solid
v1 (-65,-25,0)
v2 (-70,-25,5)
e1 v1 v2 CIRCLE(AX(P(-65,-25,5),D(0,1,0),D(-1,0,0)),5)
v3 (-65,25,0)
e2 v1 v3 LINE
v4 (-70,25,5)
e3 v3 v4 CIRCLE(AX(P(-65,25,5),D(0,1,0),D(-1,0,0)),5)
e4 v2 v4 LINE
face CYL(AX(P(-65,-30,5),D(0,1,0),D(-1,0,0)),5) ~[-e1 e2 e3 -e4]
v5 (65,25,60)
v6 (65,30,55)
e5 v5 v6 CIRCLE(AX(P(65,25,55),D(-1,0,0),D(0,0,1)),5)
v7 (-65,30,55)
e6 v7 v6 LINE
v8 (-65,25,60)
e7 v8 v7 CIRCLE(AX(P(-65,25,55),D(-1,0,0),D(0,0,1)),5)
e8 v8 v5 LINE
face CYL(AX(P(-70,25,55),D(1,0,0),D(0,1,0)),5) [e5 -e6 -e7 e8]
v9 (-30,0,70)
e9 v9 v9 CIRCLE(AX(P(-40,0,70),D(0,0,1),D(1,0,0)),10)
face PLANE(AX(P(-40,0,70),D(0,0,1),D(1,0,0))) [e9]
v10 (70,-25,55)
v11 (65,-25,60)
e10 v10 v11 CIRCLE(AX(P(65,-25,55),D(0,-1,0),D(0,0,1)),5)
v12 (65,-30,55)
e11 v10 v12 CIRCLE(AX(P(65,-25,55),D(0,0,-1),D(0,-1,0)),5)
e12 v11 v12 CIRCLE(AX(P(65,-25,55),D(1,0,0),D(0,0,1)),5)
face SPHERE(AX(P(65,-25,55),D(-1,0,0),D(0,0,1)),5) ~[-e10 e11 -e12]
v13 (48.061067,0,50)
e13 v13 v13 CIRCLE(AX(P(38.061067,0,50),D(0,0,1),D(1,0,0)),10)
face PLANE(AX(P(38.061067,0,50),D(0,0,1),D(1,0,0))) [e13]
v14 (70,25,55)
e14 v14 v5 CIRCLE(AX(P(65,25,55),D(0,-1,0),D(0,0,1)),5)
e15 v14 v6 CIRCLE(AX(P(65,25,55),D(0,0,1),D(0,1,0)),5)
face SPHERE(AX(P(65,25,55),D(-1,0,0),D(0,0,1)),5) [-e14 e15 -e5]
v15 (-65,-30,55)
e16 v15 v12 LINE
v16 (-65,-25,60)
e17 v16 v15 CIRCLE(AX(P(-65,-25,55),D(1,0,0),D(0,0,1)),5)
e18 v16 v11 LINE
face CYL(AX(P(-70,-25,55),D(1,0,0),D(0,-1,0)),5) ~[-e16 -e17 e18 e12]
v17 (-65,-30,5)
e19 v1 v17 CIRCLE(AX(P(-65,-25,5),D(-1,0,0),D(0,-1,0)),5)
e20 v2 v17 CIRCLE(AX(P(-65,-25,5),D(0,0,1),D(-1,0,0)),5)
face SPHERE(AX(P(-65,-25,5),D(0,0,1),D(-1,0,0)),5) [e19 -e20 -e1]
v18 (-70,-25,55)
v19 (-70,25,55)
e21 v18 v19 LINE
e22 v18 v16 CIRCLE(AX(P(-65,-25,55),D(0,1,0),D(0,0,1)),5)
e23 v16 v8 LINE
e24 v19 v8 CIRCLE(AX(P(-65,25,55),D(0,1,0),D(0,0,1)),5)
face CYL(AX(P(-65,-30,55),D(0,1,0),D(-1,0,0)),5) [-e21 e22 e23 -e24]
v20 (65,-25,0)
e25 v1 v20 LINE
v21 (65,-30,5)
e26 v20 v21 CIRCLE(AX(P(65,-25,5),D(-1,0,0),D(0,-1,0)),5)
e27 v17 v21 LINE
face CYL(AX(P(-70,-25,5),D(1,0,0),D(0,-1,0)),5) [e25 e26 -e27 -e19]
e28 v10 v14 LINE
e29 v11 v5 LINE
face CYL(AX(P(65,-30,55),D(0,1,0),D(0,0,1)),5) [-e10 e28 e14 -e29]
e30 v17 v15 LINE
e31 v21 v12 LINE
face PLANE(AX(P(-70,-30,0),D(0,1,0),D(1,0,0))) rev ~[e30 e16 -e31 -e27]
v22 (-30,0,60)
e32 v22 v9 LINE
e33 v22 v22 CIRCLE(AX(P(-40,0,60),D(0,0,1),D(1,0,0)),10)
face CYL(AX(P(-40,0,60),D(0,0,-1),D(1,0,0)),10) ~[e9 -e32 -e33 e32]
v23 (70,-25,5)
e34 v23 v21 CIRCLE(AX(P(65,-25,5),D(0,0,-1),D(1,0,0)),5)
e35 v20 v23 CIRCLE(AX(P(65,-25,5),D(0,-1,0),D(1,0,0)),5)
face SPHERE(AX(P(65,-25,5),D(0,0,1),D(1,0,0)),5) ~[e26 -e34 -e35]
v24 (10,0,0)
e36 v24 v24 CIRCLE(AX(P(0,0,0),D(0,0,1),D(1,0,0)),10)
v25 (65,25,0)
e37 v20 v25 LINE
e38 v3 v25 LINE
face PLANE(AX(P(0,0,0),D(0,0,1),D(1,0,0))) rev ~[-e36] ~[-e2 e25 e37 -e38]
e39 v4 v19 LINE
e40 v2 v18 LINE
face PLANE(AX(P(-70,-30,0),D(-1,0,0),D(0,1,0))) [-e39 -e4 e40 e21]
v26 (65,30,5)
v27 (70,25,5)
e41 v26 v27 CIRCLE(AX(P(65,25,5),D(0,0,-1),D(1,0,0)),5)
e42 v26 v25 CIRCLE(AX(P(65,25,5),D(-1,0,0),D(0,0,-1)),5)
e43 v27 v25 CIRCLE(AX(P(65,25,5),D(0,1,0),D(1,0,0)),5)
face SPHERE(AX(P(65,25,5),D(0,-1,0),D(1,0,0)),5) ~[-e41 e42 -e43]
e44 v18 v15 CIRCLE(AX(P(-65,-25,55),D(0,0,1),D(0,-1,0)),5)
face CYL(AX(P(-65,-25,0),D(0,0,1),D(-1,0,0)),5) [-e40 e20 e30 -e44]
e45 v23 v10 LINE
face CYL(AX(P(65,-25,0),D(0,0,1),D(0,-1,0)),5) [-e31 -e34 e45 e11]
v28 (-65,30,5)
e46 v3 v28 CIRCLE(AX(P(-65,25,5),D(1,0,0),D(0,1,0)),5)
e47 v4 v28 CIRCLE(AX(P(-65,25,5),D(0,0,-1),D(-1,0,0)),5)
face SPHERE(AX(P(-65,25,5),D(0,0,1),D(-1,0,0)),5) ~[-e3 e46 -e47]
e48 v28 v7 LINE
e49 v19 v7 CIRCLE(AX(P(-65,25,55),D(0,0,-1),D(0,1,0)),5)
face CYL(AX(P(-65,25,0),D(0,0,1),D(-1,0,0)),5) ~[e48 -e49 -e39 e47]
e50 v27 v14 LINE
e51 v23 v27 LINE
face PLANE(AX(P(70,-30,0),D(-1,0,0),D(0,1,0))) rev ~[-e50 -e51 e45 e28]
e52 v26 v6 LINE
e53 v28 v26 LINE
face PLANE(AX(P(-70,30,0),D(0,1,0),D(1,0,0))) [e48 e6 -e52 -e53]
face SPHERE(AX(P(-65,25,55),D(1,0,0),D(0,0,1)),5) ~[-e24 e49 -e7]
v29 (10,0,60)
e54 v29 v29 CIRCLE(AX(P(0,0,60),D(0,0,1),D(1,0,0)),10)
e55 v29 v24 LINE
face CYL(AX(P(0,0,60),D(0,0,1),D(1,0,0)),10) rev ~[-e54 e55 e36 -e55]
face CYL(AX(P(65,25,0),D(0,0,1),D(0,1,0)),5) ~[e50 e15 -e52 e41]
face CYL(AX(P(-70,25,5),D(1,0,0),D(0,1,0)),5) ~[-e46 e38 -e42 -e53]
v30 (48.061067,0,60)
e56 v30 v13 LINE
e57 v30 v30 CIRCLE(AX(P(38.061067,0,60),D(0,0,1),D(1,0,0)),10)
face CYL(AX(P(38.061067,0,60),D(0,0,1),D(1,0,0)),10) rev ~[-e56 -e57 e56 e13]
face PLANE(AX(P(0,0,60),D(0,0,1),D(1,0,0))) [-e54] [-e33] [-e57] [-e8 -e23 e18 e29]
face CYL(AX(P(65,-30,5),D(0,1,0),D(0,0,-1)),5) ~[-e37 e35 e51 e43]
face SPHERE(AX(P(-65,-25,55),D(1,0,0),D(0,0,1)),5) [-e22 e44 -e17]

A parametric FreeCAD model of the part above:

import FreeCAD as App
import Part
import Sketcher
from FreeCAD import Vector
Q = App.Units.Quantity


def edges_at(feature, points):
    """Names of the edges that pass closest to the given points."""
    edges = feature.Shape.Edges
    near = lambda p: min(range(len(edges)), key=lambda i: edges[i].distToShape(Part.Vertex(*p))[0])
    return sorted({f"Edge{near(p) + 1}" for p in points})

doc = App.newDocument("Part")
body = doc.addObject("PartDesign::Body", "Body")

sketch1 = body.newObject("Sketcher::SketchObject", "Sketch")
sketch1.AttachmentSupport = (doc.getObject("XY_Plane"), [""])
sketch1.MapMode = "FlatFace"
sketch1.addGeometry([
    Part.LineSegment(Vector(-70, 30, 0), Vector(-70, -30, 0)),
    Part.LineSegment(Vector(-70, -30, 0), Vector(70, -30, 0)),
    Part.LineSegment(Vector(70, -30, 0), Vector(70, 30, 0)),
    Part.LineSegment(Vector(70, 30, 0), Vector(-70, 30, 0)),
], False)
sketch1.addConstraint([
    Sketcher.Constraint("Coincident", 0, 2, 1, 1),
    Sketcher.Constraint("Coincident", 1, 2, 2, 1),
    Sketcher.Constraint("Coincident", 2, 2, 3, 1),
    Sketcher.Constraint("Coincident", 3, 2, 0, 1),
    Sketcher.Constraint("Vertical", 0),
    Sketcher.Constraint("Horizontal", 1),
    Sketcher.Constraint("Vertical", 2),
    Sketcher.Constraint("Horizontal", 3),
    Sketcher.Constraint("Symmetric", 0, 2, 2, 2, -1, 1),
    Sketcher.Constraint("DistanceX", 1, 1, 1, 2, Q("140 mm")),
    Sketcher.Constraint("DistanceY", 0, 2, 0, 1, Q("60 mm")),
])
pad1 = body.newObject("PartDesign::Pad", "Pad")
pad1.Profile = sketch1
pad1.Length = 60

sketch2 = body.newObject("Sketcher::SketchObject", "Sketch001")
sketch2.AttachmentSupport = (doc.getObject("XY_Plane"), [""])
sketch2.MapMode = "FlatFace"
sketch2.AttachmentOffset = App.Placement(Vector(0, 0, 60), App.Rotation())
sketch2.addGeometry(Part.Circle(Vector(-40, 0, 0), Vector(0, 0, 1), 10), False)
sketch2.addConstraint([
    Sketcher.Constraint("PointOnObject", 0, 3, -1),
    Sketcher.Constraint("Diameter", 0, Q("20 mm")),
    Sketcher.Constraint("DistanceX", 0, 3, -1, 1, Q("40 mm")),
])
pad2 = body.newObject("PartDesign::Pad", "Pad001")
pad2.Profile = sketch2
pad2.Length = 10

sketch3 = body.newObject("Sketcher::SketchObject", "Sketch002")
sketch3.AttachmentSupport = (doc.getObject("XY_Plane"), [""])
sketch3.MapMode = "FlatFace"
sketch3.AttachmentOffset = App.Placement(Vector(0, 0, 60), App.Rotation())
sketch3.addGeometry(Part.Circle(Vector(38, 0, 0), Vector(0, 0, 1), 10), False)
sketch3.addConstraint([
    Sketcher.Constraint("PointOnObject", 0, 3, -1),
    Sketcher.Constraint("Diameter", 0, Q("20 mm")),
    Sketcher.Constraint("DistanceX", -1, 1, 0, 3, Q("38.061067 mm")),
])
pocket1 = body.newObject("PartDesign::Pocket", "Pocket")
pocket1.Profile = sketch3
pocket1.Length = 10

sketch4 = body.newObject("Sketcher::SketchObject", "Sketch003")
sketch4.AttachmentSupport = (doc.getObject("XY_Plane"), [""])
sketch4.MapMode = "FlatFace"
sketch4.AttachmentOffset = App.Placement(Vector(0, 0, 60), App.Rotation())
sketch4.addGeometry(Part.Circle(Vector(0, 0, 0), Vector(0, 0, 1), 10), False)
sketch4.addConstraint([
    Sketcher.Constraint("Coincident", 0, 3, -1, 1),
    Sketcher.Constraint("Diameter", 0, Q("20 mm")),
])
pocket2 = body.newObject("PartDesign::Pocket", "Pocket001")
pocket2.Profile = sketch4
pocket2.Length = 877
doc.recompute()

fillet = body.newObject("PartDesign::Fillet", "Fillet")
fillet.Base = (pocket2, edges_at(pocket2, [
    (0, -30, 60),
    (0, 30, 60),
    (-70, 0, 60),
    (70, 0, 60),
    (-70, -30, 30),
    (-70, 30, 30),
    (-70, 0, 0),
    (70, -30, 30),
    (70, 0, 0),
    (70, 30, 30),
    (0, -30, 0),
    (0, 30, 0),
]))
fillet.Radius = 5

doc.recompute()
